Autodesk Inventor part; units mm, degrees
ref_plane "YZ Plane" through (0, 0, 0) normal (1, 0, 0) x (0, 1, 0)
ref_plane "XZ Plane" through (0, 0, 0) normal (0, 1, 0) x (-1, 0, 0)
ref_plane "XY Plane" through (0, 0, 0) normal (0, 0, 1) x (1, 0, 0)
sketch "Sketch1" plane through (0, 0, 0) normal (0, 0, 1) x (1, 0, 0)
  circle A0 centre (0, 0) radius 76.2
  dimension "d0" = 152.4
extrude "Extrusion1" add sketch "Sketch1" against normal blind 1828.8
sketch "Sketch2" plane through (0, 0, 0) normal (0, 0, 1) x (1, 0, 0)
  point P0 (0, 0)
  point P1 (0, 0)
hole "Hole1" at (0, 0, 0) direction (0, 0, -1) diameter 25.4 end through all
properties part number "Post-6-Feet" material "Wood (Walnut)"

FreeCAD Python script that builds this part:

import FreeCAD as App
import Part
import Sketcher

V = App.Vector
Q = App.Units.Quantity

doc = App.newDocument("Part")
body = doc.addObject("PartDesign::Body", "Body")

# Sketch on XY plane
sketch1 = doc.addObject("Sketcher::SketchObject", "Sketch")
body.addObject(sketch1)
sketch1.AttachmentSupport = (doc.XY_Plane, [""])
sketch1.MapMode = "FlatFace"
sketch1.addGeometry(Part.Circle(V(0, 0, 0), V(0, 0, 1), 76), False)
sketch1.addConstraint([
    Sketcher.Constraint("Coincident", 0, 3, -1, 1),
    Sketcher.Constraint("Diameter", 0, Q("6 in")),
])
pad1 = doc.addObject("PartDesign::Pad", "Pad")
body.addObject(pad1)
pad1.Profile = sketch1
pad1.Length = Q("72 in")
pad1.Reversed = True

# Sketch on XY plane
sketch2 = doc.addObject("Sketcher::SketchObject", "Sketch001")
body.addObject(sketch2)
sketch2.AttachmentSupport = (doc.XY_Plane, [""])
sketch2.MapMode = "FlatFace"
sketch2.addGeometry(Part.Circle(V(0, 0, 0), V(0, 0, 1), 13), False)
sketch2.addConstraint([
    Sketcher.Constraint("Coincident", 0, 3, -1, 1),
    Sketcher.Constraint("Diameter", 0, Q("1 in")),
])
doc.recompute()
hole = doc.addObject("PartDesign::Hole", "Hole")
body.addObject(hole)
hole.Profile = sketch2
hole.ThreadType = "None"
hole.Diameter = Q("1 in")
hole.DepthType = "ThroughAll"

doc.recompute()
